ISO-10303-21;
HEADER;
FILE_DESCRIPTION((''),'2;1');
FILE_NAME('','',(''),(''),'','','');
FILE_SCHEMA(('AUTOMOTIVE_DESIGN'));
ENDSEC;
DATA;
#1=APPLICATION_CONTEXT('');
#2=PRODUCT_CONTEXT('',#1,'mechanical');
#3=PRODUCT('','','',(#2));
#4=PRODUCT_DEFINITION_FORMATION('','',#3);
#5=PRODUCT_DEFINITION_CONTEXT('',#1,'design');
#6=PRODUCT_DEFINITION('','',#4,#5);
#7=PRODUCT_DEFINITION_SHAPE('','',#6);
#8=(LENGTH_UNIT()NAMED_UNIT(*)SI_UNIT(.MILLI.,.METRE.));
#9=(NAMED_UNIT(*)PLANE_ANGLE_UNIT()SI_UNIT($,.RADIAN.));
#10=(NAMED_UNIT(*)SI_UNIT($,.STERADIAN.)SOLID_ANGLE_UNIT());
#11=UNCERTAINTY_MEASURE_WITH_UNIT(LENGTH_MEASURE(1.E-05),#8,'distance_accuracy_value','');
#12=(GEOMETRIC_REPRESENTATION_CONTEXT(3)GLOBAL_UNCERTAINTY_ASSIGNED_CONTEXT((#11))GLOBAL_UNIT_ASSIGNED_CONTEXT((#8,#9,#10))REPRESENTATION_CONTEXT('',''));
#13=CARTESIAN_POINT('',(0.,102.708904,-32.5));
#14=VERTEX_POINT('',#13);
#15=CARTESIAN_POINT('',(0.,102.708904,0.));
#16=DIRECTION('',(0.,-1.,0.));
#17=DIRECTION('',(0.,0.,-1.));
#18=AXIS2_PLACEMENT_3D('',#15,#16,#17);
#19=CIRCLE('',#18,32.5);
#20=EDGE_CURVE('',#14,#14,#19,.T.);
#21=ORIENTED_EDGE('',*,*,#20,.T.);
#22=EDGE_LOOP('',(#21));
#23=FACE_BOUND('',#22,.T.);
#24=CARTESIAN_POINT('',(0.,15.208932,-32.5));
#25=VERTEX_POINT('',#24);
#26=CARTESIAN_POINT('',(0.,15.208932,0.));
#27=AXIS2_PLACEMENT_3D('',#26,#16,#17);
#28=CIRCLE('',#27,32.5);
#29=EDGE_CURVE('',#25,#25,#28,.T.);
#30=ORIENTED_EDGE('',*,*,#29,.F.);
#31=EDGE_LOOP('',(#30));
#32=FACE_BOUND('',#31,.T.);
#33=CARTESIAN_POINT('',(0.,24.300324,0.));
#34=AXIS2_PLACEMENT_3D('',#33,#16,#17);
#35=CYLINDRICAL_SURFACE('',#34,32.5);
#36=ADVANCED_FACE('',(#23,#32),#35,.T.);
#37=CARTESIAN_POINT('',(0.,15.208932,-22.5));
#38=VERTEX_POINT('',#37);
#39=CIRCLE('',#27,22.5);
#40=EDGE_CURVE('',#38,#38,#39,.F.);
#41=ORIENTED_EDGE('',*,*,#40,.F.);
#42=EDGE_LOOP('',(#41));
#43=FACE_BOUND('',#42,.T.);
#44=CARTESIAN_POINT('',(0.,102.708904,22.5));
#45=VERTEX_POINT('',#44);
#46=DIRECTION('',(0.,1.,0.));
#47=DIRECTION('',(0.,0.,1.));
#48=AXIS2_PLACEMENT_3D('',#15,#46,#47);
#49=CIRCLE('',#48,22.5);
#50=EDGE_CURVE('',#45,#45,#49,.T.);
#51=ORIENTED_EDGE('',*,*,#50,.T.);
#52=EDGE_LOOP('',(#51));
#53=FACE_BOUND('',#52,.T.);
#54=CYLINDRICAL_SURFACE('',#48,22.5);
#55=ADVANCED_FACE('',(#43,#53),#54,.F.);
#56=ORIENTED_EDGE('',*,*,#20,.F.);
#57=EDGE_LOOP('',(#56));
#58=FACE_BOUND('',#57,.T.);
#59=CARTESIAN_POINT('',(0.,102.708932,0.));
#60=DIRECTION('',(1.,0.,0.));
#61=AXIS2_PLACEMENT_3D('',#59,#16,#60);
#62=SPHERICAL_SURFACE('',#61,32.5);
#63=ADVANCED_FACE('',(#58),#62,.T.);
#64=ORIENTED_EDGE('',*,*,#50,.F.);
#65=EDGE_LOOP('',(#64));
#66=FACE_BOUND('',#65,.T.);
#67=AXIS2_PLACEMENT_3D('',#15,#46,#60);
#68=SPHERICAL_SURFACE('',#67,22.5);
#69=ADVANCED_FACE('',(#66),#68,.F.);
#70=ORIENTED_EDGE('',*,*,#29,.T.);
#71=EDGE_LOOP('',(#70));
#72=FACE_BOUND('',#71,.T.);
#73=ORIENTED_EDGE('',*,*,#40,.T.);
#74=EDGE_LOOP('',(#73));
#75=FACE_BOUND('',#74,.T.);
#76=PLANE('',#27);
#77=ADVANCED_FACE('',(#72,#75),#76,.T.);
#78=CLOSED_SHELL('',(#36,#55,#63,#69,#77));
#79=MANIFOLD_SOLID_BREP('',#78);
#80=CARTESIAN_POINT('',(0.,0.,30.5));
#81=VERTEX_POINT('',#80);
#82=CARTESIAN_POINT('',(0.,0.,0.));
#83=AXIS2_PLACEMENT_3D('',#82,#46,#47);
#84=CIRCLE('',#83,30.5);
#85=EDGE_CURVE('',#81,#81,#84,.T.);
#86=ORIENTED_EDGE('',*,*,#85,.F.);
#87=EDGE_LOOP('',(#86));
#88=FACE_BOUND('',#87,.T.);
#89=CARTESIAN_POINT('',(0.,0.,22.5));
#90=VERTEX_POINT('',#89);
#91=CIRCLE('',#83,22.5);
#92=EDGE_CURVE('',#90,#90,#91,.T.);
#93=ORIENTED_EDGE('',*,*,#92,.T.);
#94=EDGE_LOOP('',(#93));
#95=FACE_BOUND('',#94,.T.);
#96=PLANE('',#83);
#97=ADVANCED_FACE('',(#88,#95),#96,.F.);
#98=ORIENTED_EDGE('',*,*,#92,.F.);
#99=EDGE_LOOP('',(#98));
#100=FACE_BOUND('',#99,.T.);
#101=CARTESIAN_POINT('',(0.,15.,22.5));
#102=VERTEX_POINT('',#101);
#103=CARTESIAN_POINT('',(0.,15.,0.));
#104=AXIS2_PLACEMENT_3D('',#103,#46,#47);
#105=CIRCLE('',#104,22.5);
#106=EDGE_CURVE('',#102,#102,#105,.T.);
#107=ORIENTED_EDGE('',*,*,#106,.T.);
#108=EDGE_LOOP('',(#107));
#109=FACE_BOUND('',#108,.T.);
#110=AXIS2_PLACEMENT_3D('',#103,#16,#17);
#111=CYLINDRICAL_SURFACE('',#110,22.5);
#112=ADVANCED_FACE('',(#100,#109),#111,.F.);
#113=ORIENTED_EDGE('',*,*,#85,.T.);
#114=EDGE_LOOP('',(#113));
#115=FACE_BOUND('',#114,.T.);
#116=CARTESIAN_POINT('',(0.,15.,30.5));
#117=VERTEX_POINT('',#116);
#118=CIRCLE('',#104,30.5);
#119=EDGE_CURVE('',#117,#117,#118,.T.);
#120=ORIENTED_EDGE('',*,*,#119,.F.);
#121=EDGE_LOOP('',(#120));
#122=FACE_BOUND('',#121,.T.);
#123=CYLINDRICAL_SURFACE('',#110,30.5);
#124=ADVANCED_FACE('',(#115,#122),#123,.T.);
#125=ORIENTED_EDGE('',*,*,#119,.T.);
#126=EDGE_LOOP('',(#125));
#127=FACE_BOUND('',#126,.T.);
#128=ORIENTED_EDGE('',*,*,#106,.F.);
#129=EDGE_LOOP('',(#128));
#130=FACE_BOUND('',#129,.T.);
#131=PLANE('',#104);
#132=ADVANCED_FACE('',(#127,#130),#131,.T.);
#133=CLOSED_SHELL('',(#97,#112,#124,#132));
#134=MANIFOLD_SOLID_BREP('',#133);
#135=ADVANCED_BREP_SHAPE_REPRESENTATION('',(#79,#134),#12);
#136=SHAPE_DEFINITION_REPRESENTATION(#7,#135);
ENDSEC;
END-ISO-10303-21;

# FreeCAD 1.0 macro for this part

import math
import FreeCAD as App
import Part
import Sketcher
from FreeCAD import Vector
Q = App.Units.Quantity

doc = App.newDocument("Part")
body = doc.addObject("PartDesign::Body", "Body")

sketch1 = body.newObject("Sketcher::SketchObject", "Sketch")
sketch1.AttachmentSupport = (doc.getObject("XZ_Plane"), [""])
sketch1.MapMode = "FlatFace"
sketch1.addGeometry([
    Part.Circle(Vector(0, 0, 0), Vector(0, 0, 1), 30.5),
    Part.Circle(Vector(0, 0, 0), Vector(0, 0, 1), 22.5),
], False)
sketch1.addConstraint([
    Sketcher.Constraint("Coincident", 0, 3, -1, 1),
    Sketcher.Constraint("Coincident", 1, 3, -1, 1),
    Sketcher.Constraint("Diameter", 0, Q("61 mm")),
    Sketcher.Constraint("Diameter", 1, Q("45 mm")),
])
pad1 = body.newObject("PartDesign::Pad", "Pad")
pad1.Profile = sketch1
pad1.Length = 15
pad1.Reversed = True
body2 = doc.addObject("PartDesign::Body", "Body001")

sketch2 = body2.newObject("Sketcher::SketchObject", "Sketch001")
sketch2.AttachmentSupport = (doc.getObject("XY_Plane001"), [""])
sketch2.MapMode = "FlatFace"
sketch2.addGeometry([
    Part.LineSegment(Vector(0, 15.208932, 0), Vector(32.5, 15.208932, 0)),
    Part.LineSegment(Vector(32.5, 15.208932, 0), Vector(32.5, 102.708904, 0)),
    Part.ArcOfCircle(Part.Circle(Vector(0, 102.708932, 0), Vector(0, 0, 1), 32.5), math.radians(-0.000051), math.radians(90)),
    Part.LineSegment(Vector(0, 135.208932, 0), Vector(0, 15.208932, 0)),
], False)
sketch2.addConstraint([
    Sketcher.Constraint("Coincident", 0, 2, 1, 1),
    Sketcher.Constraint("Coincident", 1, 2, 2, 1),
    Sketcher.Constraint("Coincident", 2, 2, 3, 1),
    Sketcher.Constraint("Coincident", 3, 2, 0, 1),
    Sketcher.Constraint("Horizontal", 0),
    Sketcher.Constraint("Vertical", 1),
    Sketcher.Constraint("Vertical", 3),
    Sketcher.Constraint("PointOnObject", 2, 3, -2),
    Sketcher.Constraint("PointOnObject", 2, 2, -2),
    Sketcher.Constraint("Radius", 2, Q("32.5 mm")),
    Sketcher.Constraint("DistanceY", 3, 2, 3, 1, Q("120 mm")),
    Sketcher.Constraint("DistanceY", 1, 1, 1, 2, Q("87.499971 mm")),
    Sketcher.Constraint("DistanceY", -1, 1, 2, 3, Q("102.708932 mm")),
])
revolution = body2.newObject("PartDesign::Revolution", "Revolution")
revolution.Profile = sketch2
revolution.ReferenceAxis = (sketch2, ["V_Axis"])
revolution.Angle = 360

sketch3 = body2.newObject("Sketcher::SketchObject", "Sketch002")
sketch3.AttachmentSupport = (doc.getObject("XY_Plane001"), [""])
sketch3.MapMode = "FlatFace"
sketch3.addGeometry([
    Part.LineSegment(Vector(22.5, 15, 0), Vector(22.5, 102.708904, 0)),
    Part.ArcOfCircle(Part.Circle(Vector(0, 102.708904, 0), Vector(0, 0, 1), 22.5), math.radians(0), math.radians(90)),
    Part.LineSegment(Vector(0, 125.208904, 0), Vector(0, 15, 0)),
    Part.LineSegment(Vector(0, 15, 0), Vector(22.5, 15, 0)),
], False)
sketch3.addConstraint([
    Sketcher.Constraint("Tangent", 0, 2, 1, 1),
    Sketcher.Constraint("Coincident", 1, 2, 2, 1),
    Sketcher.Constraint("Coincident", 2, 2, 3, 1),
    Sketcher.Constraint("Coincident", 3, 2, 0, 1),
    Sketcher.Constraint("Vertical", 0),
    Sketcher.Constraint("Vertical", 2),
    Sketcher.Constraint("Horizontal", 3),
    Sketcher.Constraint("PointOnObject", 1, 3, -2),
    Sketcher.Constraint("PointOnObject", 1, 2, -2),
    Sketcher.Constraint("Radius", 1, Q("22.5 mm")),
    Sketcher.Constraint("DistanceY", -1, 1, 2, 2, Q("15 mm")),
    Sketcher.Constraint("DistanceY", 0, 1, 0, 2, Q("87.708904 mm")),
])
groove = body2.newObject("PartDesign::Groove", "Groove")
groove.Profile = sketch3
groove.ReferenceAxis = (sketch3, ["V_Axis"])
groove.Angle = 360

doc.recompute()
